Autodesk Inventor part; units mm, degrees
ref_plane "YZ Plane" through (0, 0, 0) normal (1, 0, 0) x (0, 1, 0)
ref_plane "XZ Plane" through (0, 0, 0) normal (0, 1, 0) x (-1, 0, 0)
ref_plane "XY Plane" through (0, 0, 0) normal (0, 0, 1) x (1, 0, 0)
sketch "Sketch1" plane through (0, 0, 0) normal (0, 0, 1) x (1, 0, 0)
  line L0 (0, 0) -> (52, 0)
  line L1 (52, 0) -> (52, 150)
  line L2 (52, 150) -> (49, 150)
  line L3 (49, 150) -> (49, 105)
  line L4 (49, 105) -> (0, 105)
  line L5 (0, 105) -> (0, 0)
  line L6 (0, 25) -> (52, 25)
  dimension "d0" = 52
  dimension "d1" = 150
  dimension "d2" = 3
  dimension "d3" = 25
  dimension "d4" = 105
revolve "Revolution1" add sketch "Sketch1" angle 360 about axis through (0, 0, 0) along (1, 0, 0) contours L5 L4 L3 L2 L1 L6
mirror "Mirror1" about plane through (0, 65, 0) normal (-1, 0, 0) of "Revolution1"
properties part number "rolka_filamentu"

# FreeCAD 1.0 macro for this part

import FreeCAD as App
import Part
import Sketcher
from FreeCAD import Vector
Q = App.Units.Quantity


def add_polygon(sketch, points):
    """Adds a closed chain of lines whose ends are joined by coincident constraints."""
    first, n = sketch.GeometryCount, len(points)
    for a, b in zip(points, points[1:] + points[:1]):
        sketch.addGeometry(Part.LineSegment(App.Vector(*a, 0), App.Vector(*b, 0)), False)
    for i in range(n):
        sketch.addConstraint(Sketcher.Constraint("Coincident", first + i, 2, first + (i + 1) % n, 1))

doc = App.newDocument("Part")
body = doc.addObject("PartDesign::Body", "Body")

# Sketch on XY plane
sketch1 = body.newObject("Sketcher::SketchObject", "Sketch")
sketch1.AttachmentSupport = (doc.getObject("XY_Plane"), [""])
sketch1.MapMode = "FlatFace"
add_polygon(sketch1, [(0, 105), (0, 25), (52, 25), (52, 150), (49, 150), (49, 105)])  # lines 0-5
sketch1.addConstraint(Sketcher.Constraint("Vertical", 0))
sketch1.addConstraint(Sketcher.Constraint("Horizontal", 1))
sketch1.addConstraint(Sketcher.Constraint("Vertical", 2))
sketch1.addConstraint(Sketcher.Constraint("Horizontal", 3))
sketch1.addConstraint(Sketcher.Constraint("Vertical", 4))
sketch1.addConstraint(Sketcher.Constraint("Horizontal", 5))
sketch1.addConstraint(Sketcher.Constraint("PointOnObject", 0, 2, -2))
sketch1.addConstraint(Sketcher.Constraint("DistanceX", 1, 1, 1, 2, Q("52 mm")))
sketch1.addConstraint(Sketcher.Constraint("DistanceX", 3, 2, 3, 1, Q("3 mm")))
sketch1.addConstraint(Sketcher.Constraint("DistanceY", -1, 1, 0, 2, Q("25 mm")))
sketch1.addConstraint(Sketcher.Constraint("DistanceY", -1, 1, 2, 2, Q("150 mm")))
sketch1.addConstraint(Sketcher.Constraint("DistanceY", -1, 1, 4, 2, Q("105 mm")))
revolution = body.newObject("PartDesign::Revolution", "Revolution")
revolution.Profile = sketch1
revolution.ReferenceAxis = (sketch1, ["H_Axis"])
revolution.Angle = 360
doc.recompute()

mirrored = body.newObject("PartDesign::Mirrored", "Mirrored")
mirrored.Originals = [revolution]
mirrored.MirrorPlane = (doc.getObject("YZ_Plane"), [""])
body.Tip = mirrored

doc.recompute()
